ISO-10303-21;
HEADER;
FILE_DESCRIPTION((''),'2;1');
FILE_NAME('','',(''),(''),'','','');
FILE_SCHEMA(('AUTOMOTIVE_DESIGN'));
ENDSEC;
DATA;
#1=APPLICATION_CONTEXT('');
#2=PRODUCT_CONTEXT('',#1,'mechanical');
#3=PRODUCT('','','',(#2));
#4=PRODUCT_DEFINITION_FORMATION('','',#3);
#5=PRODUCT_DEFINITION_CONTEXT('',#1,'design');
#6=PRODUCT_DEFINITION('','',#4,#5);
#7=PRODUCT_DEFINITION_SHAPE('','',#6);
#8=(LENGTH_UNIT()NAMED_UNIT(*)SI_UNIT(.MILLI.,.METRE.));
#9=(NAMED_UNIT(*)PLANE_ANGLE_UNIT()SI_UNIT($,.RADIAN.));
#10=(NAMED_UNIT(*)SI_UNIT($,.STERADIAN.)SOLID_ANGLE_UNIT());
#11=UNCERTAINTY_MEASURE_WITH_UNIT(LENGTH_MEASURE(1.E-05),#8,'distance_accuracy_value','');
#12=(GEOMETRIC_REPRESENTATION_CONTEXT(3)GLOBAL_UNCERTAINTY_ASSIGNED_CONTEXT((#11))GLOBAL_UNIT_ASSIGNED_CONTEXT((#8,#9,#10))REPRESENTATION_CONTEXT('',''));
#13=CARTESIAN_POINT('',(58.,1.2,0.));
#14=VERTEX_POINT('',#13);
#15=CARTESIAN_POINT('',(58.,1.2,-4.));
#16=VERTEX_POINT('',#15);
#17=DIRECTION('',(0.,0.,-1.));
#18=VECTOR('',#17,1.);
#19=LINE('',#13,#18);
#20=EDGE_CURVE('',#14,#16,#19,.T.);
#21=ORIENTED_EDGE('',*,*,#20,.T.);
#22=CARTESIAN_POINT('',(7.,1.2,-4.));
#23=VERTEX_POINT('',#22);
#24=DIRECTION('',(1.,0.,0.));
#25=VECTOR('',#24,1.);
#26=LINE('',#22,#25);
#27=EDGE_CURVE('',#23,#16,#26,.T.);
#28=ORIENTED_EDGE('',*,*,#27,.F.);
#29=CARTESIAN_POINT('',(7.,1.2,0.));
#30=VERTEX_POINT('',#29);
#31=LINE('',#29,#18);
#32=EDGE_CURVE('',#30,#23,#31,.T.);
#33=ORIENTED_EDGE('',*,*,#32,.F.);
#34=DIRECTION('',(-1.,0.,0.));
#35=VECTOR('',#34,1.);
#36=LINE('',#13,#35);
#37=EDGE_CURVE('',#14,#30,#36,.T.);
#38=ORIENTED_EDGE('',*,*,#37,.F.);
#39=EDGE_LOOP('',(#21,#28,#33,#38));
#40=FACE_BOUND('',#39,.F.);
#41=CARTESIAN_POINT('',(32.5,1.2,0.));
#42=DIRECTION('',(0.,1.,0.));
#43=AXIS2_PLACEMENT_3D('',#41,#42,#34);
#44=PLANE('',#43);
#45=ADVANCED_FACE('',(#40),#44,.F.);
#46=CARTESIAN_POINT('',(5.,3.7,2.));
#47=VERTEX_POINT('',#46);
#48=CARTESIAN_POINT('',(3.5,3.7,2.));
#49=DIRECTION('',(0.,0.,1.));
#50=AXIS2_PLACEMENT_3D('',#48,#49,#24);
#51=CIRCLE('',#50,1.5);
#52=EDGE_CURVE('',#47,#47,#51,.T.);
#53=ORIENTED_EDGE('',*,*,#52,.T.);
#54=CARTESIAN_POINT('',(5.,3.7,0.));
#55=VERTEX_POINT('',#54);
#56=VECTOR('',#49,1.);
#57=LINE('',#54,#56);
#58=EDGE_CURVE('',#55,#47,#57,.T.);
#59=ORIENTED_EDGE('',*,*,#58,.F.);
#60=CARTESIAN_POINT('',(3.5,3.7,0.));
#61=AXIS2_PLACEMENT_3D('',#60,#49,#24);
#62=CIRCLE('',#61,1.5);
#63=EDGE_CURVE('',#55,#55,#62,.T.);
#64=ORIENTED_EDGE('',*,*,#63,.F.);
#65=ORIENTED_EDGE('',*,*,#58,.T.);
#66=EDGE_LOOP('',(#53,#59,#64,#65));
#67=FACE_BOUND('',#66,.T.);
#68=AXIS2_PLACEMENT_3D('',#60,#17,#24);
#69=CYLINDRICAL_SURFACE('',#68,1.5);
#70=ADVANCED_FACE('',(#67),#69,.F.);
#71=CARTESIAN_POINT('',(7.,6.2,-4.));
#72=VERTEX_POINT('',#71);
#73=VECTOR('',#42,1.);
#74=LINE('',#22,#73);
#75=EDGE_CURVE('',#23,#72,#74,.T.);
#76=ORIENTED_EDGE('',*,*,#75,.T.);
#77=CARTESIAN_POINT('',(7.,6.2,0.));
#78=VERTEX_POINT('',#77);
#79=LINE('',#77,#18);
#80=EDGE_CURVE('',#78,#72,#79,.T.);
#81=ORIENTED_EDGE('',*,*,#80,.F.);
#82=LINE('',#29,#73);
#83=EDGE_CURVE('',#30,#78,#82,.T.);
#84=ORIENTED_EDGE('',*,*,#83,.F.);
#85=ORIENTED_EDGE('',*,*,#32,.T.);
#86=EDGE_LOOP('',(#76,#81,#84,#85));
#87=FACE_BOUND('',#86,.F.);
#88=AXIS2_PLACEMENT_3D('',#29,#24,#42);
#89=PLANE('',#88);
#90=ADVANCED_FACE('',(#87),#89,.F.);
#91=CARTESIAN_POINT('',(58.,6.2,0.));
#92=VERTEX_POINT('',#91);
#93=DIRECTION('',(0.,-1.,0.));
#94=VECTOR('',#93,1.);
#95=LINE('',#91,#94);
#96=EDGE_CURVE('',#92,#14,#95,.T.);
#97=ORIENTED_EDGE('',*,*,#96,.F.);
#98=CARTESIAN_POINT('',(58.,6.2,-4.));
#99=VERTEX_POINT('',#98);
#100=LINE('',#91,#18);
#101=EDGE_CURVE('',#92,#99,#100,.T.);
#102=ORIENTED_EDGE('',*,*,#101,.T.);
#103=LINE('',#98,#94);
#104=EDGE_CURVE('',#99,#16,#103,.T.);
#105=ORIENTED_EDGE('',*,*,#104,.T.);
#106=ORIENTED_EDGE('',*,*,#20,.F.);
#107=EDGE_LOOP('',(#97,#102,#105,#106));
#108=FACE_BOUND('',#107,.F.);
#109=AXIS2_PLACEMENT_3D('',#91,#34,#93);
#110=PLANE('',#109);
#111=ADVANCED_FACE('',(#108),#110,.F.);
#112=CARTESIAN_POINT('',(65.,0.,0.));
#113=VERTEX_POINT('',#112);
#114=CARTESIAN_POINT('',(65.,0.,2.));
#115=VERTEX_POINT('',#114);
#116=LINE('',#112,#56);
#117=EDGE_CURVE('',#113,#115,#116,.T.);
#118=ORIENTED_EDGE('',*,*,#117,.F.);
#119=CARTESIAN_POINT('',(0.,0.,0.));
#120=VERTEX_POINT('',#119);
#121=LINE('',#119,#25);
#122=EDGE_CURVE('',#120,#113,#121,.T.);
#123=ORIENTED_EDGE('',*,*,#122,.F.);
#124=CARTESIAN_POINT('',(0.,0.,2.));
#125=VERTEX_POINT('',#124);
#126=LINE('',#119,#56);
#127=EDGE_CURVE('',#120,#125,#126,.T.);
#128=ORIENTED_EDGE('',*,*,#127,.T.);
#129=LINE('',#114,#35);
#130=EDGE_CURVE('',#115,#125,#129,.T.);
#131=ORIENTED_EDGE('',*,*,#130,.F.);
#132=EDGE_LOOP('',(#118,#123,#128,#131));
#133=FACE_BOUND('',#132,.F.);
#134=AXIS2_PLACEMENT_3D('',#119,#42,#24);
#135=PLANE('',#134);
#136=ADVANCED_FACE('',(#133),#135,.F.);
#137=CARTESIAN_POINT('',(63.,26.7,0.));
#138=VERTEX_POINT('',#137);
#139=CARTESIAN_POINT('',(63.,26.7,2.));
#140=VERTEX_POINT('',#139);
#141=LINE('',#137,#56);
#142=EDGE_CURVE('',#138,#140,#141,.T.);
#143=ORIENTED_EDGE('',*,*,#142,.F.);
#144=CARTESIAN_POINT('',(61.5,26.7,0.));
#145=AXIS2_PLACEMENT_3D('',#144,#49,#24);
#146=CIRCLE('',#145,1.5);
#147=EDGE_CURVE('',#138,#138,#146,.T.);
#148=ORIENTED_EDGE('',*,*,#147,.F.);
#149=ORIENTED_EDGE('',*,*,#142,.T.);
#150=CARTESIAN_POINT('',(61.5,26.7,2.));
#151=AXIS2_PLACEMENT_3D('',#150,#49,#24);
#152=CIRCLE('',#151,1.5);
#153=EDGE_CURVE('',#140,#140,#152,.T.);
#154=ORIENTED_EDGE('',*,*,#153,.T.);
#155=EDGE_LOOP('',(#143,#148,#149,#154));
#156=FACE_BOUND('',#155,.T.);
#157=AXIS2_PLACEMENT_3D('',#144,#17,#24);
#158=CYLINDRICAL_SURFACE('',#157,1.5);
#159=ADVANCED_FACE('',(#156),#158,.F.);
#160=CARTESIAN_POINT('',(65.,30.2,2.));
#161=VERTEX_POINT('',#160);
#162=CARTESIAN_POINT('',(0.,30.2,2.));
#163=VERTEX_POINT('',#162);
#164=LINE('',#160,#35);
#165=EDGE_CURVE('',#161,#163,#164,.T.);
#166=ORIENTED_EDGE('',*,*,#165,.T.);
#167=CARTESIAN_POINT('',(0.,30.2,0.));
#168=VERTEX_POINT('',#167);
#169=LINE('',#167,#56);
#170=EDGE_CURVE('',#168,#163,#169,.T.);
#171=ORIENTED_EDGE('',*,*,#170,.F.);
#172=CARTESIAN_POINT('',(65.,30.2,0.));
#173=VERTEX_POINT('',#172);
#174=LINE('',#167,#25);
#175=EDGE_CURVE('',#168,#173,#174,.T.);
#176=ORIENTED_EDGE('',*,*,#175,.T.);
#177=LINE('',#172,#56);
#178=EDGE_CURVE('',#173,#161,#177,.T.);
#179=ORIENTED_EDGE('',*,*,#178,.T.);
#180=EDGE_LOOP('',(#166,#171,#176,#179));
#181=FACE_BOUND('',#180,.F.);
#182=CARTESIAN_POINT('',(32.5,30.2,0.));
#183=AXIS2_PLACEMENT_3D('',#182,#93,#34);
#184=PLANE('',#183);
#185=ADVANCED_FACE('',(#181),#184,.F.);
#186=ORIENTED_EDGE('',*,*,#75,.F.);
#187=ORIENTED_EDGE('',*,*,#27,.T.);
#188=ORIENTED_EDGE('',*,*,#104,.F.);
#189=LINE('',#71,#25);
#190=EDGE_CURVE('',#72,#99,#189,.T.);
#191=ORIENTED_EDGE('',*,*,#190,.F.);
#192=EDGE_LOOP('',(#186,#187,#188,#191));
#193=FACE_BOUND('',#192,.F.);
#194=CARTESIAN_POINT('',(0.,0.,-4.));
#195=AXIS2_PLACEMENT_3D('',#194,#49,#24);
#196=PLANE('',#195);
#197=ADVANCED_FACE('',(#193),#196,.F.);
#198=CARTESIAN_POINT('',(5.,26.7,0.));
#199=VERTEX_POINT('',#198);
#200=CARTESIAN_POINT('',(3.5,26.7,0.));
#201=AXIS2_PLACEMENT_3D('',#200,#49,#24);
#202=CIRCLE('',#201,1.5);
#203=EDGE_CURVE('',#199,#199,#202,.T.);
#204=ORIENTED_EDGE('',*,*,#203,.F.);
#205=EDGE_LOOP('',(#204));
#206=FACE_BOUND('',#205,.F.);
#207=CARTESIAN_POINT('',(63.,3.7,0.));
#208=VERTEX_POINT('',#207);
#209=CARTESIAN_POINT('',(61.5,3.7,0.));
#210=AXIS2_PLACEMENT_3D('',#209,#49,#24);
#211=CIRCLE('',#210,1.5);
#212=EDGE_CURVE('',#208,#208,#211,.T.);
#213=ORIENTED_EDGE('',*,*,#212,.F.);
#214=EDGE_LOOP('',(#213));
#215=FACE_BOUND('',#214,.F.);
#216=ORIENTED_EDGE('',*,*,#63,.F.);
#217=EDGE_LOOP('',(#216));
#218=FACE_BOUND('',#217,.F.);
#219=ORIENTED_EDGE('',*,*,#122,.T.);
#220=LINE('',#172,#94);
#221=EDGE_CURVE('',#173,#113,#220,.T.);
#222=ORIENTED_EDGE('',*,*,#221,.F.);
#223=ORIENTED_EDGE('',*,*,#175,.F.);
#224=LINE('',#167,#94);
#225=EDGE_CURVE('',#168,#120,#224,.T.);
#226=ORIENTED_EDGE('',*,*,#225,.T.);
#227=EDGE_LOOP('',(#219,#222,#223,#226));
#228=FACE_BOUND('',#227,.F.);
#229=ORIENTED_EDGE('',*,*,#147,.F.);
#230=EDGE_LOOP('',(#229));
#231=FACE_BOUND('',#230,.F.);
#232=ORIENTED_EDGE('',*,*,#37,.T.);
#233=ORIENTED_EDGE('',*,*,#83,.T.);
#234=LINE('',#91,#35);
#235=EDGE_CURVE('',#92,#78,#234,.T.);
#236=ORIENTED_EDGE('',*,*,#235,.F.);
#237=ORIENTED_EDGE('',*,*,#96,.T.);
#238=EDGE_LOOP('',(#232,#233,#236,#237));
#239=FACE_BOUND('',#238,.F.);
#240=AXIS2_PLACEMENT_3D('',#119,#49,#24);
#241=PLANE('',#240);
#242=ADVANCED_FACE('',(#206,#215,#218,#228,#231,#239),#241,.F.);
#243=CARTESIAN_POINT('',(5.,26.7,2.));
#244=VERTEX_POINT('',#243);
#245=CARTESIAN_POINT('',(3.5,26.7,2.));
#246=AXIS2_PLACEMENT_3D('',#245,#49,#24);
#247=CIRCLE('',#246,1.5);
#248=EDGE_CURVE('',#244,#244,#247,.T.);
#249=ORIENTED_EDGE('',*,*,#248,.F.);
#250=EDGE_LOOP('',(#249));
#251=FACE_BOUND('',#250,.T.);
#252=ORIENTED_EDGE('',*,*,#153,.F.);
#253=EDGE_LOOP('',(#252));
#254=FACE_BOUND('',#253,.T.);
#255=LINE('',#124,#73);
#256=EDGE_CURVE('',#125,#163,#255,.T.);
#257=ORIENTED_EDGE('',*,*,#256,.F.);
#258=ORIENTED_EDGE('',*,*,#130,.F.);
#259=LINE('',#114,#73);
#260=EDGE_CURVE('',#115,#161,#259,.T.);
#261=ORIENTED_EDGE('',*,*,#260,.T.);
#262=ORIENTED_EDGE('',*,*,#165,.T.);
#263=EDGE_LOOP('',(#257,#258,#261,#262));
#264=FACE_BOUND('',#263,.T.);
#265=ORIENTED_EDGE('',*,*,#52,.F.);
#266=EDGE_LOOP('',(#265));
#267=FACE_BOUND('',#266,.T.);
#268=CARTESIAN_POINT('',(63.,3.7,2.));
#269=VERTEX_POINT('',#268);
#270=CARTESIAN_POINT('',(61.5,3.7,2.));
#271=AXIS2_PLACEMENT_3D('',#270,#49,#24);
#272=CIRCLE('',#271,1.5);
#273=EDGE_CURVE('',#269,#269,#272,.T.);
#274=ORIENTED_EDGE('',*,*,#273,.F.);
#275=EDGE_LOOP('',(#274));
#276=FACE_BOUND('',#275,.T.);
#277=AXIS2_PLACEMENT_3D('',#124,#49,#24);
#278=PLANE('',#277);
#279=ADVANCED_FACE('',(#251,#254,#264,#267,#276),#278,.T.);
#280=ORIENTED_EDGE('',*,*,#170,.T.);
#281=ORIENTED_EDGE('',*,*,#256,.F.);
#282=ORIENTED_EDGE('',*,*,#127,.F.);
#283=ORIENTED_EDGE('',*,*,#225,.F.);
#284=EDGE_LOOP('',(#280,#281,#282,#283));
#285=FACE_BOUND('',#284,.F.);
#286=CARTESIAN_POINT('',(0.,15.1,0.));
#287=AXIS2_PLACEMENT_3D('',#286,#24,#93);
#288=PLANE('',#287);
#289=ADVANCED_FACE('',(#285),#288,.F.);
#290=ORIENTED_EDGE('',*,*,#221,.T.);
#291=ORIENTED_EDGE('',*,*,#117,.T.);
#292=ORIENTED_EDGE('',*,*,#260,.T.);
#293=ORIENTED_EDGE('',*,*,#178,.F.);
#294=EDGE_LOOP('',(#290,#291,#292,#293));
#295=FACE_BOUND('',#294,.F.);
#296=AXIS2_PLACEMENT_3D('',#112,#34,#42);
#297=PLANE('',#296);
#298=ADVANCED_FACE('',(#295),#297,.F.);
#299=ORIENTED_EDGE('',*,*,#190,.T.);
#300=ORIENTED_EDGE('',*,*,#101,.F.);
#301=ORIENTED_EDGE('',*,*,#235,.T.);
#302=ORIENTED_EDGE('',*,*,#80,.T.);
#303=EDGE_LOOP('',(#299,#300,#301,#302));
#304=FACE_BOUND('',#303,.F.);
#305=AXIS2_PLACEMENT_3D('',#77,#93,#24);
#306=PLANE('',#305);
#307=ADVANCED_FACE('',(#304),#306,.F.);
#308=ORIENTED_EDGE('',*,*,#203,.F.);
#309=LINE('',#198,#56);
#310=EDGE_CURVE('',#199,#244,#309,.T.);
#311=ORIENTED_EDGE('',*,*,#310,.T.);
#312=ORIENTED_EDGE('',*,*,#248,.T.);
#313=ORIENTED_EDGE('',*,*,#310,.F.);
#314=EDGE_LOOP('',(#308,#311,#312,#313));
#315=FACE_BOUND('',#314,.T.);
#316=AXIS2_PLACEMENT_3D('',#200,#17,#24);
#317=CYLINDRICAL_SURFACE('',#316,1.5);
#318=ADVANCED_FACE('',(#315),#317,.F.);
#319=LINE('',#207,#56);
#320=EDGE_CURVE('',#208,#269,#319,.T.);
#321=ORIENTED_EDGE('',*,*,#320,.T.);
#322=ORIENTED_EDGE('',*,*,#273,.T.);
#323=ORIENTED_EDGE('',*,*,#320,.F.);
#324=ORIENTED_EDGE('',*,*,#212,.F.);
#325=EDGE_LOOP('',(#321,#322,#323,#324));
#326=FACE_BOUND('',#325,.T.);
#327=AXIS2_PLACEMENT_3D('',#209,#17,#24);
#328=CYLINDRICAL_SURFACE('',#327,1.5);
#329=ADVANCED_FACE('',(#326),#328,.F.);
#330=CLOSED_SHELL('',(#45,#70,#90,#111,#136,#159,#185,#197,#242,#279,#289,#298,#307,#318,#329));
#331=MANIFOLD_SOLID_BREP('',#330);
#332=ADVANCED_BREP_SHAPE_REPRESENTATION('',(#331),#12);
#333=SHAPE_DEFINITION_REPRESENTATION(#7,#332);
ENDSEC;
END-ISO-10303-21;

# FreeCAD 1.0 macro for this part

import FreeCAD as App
import Part
import Sketcher
Q = App.Units.Quantity


def add_polygon(sketch, points):
    """Adds a closed chain of lines whose ends are joined by coincident constraints."""
    first, n = sketch.GeometryCount, len(points)
    for a, b in zip(points, points[1:] + points[:1]):
        sketch.addGeometry(Part.LineSegment(App.Vector(*a, 0), App.Vector(*b, 0)), False)
    for i in range(n):
        sketch.addConstraint(Sketcher.Constraint("Coincident", first + i, 2, first + (i + 1) % n, 1))

doc = App.newDocument("Part")
body = doc.addObject("PartDesign::Body", "Body")

# Sketch on XY plane
sketch1 = body.newObject("Sketcher::SketchObject", "Sketch")
sketch1.AttachmentSupport = (doc.getObject("XY_Plane"), [""])
sketch1.MapMode = "FlatFace"
add_polygon(sketch1, [(0, 0), (65, 0), (65, 30.2), (0, 30.2)])  # lines 0-3
sketch1.addGeometry(Part.Circle(App.Vector(3.5, 3.7, 0), App.Vector(0, 0, 1), 1.5), False)  # 4
sketch1.addGeometry(Part.Circle(App.Vector(3.5, 26.7, 0), App.Vector(0, 0, 1), 1.5), False)  # 5
sketch1.addGeometry(Part.Circle(App.Vector(61.5, 3.7, 0), App.Vector(0, 0, 1), 1.5), False)  # 6
sketch1.addGeometry(Part.Circle(App.Vector(61.5, 26.7, 0), App.Vector(0, 0, 1), 1.5), False)  # 7
sketch1.addConstraint(Sketcher.Constraint("Horizontal", 0))
sketch1.addConstraint(Sketcher.Constraint("Vertical", 1))
sketch1.addConstraint(Sketcher.Constraint("Horizontal", 2))
sketch1.addConstraint(Sketcher.Constraint("Vertical", 3))
sketch1.addConstraint(Sketcher.Constraint("Coincident", 3, 2, -1, 1))
sketch1.addConstraint(Sketcher.Constraint("Equal", 4, 5))
sketch1.addConstraint(Sketcher.Constraint("Equal", 5, 6))
sketch1.addConstraint(Sketcher.Constraint("Equal", 6, 7))
sketch1.addConstraint(Sketcher.Constraint("Horizontal", 4, 3, 6, 3))
sketch1.addConstraint(Sketcher.Constraint("Horizontal", 5, 3, 7, 3))
sketch1.addConstraint(Sketcher.Constraint("Vertical", 4, 3, 5, 3))
sketch1.addConstraint(Sketcher.Constraint("Vertical", 6, 3, 7, 3))
sketch1.addConstraint(Sketcher.Constraint("Diameter", 4, Q("3 mm")))
sketch1.addConstraint(Sketcher.Constraint("DistanceX", 0, 1, 0, 2, Q("65 mm")))
sketch1.addConstraint(Sketcher.Constraint("DistanceY", 1, 1, 1, 2, Q("30.2 mm")))
sketch1.addConstraint(Sketcher.Constraint("DistanceX", -1, 1, 4, 3, Q("3.5 mm")))
sketch1.addConstraint(Sketcher.Constraint("DistanceY", -1, 1, 4, 3, Q("3.7 mm")))
sketch1.addConstraint(Sketcher.Constraint("DistanceX", 6, 3, 0, 2, Q("3.5 mm")))
sketch1.addConstraint(Sketcher.Constraint("DistanceY", 7, 3, 1, 2, Q("3.5 mm")))
pad1 = body.newObject("PartDesign::Pad", "Pad")
pad1.Profile = sketch1
pad1.Length = 2

# Sketch on XY plane
sketch2 = body.newObject("Sketcher::SketchObject", "Sketch001")
sketch2.AttachmentSupport = (doc.getObject("XY_Plane"), [""])
sketch2.MapMode = "FlatFace"
add_polygon(sketch2, [(7, 1), (58, 1), (58, 6), (7, 6)])  # lines 0-3
sketch2.addConstraint(Sketcher.Constraint("Horizontal", 0))
sketch2.addConstraint(Sketcher.Constraint("Vertical", 1))
sketch2.addConstraint(Sketcher.Constraint("Horizontal", 2))
sketch2.addConstraint(Sketcher.Constraint("Vertical", 3))
sketch2.addConstraint(Sketcher.Constraint("DistanceX", 0, 1, 0, 2, Q("51 mm")))
sketch2.addConstraint(Sketcher.Constraint("DistanceY", 1, 1, 1, 2, Q("5 mm")))
sketch2.addConstraint(Sketcher.Constraint("DistanceY", -1, 1, 0, 2, Q("1.2 mm")))
sketch2.addConstraint(Sketcher.Constraint("DistanceX", -1, 1, 0, 2, Q("58 mm")))
pad2 = body.newObject("PartDesign::Pad", "Pad001")
pad2.Profile = sketch2
pad2.Length = 4
pad2.Reversed = True

doc.recompute()
